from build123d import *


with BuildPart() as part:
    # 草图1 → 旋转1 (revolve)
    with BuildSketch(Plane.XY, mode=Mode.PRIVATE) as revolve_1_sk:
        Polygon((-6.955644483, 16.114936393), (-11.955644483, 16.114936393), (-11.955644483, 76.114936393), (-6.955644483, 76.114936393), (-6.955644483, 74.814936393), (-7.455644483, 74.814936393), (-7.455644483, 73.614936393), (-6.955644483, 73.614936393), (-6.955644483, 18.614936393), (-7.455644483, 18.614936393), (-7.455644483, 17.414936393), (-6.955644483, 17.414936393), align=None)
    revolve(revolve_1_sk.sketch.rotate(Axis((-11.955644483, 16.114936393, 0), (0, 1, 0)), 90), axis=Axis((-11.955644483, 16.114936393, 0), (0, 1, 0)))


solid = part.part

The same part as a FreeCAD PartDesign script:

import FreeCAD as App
import Part
import Sketcher
from FreeCAD import Vector


def add_polygon(sketch, points):
    """Adds a closed chain of lines whose ends are joined by coincident constraints."""
    first, n = sketch.GeometryCount, len(points)
    for a, b in zip(points, points[1:] + points[:1]):
        sketch.addGeometry(Part.LineSegment(App.Vector(*a, 0), App.Vector(*b, 0)), False)
    for i in range(n):
        sketch.addConstraint(Sketcher.Constraint("Coincident", first + i, 2, first + (i + 1) % n, 1))

doc = App.newDocument("Part")
params = doc.addObject("Spreadsheet::Sheet", "Params")
for row, (alias, value) in enumerate([
    ("sketch1_width", "5 mm"),
    ("sketch1_height", "55 mm"),
    ("sketch1_height2", "60 mm"),
    ("sketch1_width2", "0.5 mm"),
    ("sketch1_height3", "1.3 mm"),
    ("revolution_angle", "360 deg"),
], start=1):
    params.set(f"A{row}", alias)
    params.set(f"B{row}", "=" + value)
    params.setAlias(f"B{row}", alias)

body = doc.addObject("PartDesign::Body", "Body")

sketch1 = body.newObject("Sketcher::SketchObject", "Sketch")
sketch1.AttachmentSupport = (doc.getObject("XY_Plane"), [""])
sketch1.MapMode = "FlatFace"
add_polygon(sketch1, [(-12, 16.1), (-7, 16.1), (-7, 17.4), (-7.5, 17.4), (-7.5, 18.6), (-7, 18.6), (-7, 73.6), (-7.5, 73.6), (-7.5, 74.8), (-7, 74.8), (-7, 76.1), (-12, 76.1)])
sketch1.addGeometry(Part.LineSegment(Vector(-12, 16.1, 0), Vector(-12, 76.1, 0)), True)
sketch1.addConstraint([
    Sketcher.Constraint("Horizontal", 0),
    Sketcher.Constraint("Vertical", 1),
    Sketcher.Constraint("Horizontal", 2),
    Sketcher.Constraint("Vertical", 3),
    Sketcher.Constraint("Horizontal", 4),
    Sketcher.Constraint("Vertical", 5),
    Sketcher.Constraint("Horizontal", 6),
    Sketcher.Constraint("Vertical", 7),
    Sketcher.Constraint("Horizontal", 8),
    Sketcher.Constraint("Vertical", 9),
    Sketcher.Constraint("Horizontal", 10),
    Sketcher.Constraint("Vertical", 11),
    Sketcher.Constraint("Vertical", 12),
    Sketcher.Constraint("Coincident", 12, 1, 11, 2),
    Sketcher.Constraint("Horizontal", 9, 2, 12, 2),
    Sketcher.Constraint("Vertical", 1, 2, 4, 2),
    Sketcher.Constraint("Vertical", 3, 2, 6, 2),
    Sketcher.Constraint("Vertical", 5, 2, 8, 2),
    Sketcher.Constraint("Equal", 3, 7),
    Sketcher.Constraint("Equal", 1, 9),
    Sketcher.Constraint("DistanceX", 0, 1, 0, 2, 5.0),
    Sketcher.Constraint("DistanceY", 5, 1, 5, 2, 55.0),
    Sketcher.Constraint("DistanceY", 11, 2, 11, 1, 60.0),
    Sketcher.Constraint("DistanceX", 2, 2, 2, 1, 0.5),
    Sketcher.Constraint("DistanceY", 1, 1, 1, 2, 1.3),
    Sketcher.Constraint("DistanceX", 0, 2, -1, 1, 6.955644),
    Sketcher.Constraint("DistanceY", -1, 1, 0, 2, 16.114936),
])
sketch1.setExpression("Constraints[32]", "Params.sketch1_width")
sketch1.setExpression("Constraints[33]", "Params.sketch1_height")
sketch1.setExpression("Constraints[34]", "Params.sketch1_height2")
sketch1.setExpression("Constraints[35]", "Params.sketch1_width2")
sketch1.setExpression("Constraints[36]", "Params.sketch1_height3")
revolution = body.newObject("PartDesign::Revolution", "Revolution")
revolution.Profile = sketch1
revolution.ReferenceAxis = (sketch1, ["Axis0"])
revolution.setExpression("Angle", "Params.revolution_angle")

doc.recompute()
